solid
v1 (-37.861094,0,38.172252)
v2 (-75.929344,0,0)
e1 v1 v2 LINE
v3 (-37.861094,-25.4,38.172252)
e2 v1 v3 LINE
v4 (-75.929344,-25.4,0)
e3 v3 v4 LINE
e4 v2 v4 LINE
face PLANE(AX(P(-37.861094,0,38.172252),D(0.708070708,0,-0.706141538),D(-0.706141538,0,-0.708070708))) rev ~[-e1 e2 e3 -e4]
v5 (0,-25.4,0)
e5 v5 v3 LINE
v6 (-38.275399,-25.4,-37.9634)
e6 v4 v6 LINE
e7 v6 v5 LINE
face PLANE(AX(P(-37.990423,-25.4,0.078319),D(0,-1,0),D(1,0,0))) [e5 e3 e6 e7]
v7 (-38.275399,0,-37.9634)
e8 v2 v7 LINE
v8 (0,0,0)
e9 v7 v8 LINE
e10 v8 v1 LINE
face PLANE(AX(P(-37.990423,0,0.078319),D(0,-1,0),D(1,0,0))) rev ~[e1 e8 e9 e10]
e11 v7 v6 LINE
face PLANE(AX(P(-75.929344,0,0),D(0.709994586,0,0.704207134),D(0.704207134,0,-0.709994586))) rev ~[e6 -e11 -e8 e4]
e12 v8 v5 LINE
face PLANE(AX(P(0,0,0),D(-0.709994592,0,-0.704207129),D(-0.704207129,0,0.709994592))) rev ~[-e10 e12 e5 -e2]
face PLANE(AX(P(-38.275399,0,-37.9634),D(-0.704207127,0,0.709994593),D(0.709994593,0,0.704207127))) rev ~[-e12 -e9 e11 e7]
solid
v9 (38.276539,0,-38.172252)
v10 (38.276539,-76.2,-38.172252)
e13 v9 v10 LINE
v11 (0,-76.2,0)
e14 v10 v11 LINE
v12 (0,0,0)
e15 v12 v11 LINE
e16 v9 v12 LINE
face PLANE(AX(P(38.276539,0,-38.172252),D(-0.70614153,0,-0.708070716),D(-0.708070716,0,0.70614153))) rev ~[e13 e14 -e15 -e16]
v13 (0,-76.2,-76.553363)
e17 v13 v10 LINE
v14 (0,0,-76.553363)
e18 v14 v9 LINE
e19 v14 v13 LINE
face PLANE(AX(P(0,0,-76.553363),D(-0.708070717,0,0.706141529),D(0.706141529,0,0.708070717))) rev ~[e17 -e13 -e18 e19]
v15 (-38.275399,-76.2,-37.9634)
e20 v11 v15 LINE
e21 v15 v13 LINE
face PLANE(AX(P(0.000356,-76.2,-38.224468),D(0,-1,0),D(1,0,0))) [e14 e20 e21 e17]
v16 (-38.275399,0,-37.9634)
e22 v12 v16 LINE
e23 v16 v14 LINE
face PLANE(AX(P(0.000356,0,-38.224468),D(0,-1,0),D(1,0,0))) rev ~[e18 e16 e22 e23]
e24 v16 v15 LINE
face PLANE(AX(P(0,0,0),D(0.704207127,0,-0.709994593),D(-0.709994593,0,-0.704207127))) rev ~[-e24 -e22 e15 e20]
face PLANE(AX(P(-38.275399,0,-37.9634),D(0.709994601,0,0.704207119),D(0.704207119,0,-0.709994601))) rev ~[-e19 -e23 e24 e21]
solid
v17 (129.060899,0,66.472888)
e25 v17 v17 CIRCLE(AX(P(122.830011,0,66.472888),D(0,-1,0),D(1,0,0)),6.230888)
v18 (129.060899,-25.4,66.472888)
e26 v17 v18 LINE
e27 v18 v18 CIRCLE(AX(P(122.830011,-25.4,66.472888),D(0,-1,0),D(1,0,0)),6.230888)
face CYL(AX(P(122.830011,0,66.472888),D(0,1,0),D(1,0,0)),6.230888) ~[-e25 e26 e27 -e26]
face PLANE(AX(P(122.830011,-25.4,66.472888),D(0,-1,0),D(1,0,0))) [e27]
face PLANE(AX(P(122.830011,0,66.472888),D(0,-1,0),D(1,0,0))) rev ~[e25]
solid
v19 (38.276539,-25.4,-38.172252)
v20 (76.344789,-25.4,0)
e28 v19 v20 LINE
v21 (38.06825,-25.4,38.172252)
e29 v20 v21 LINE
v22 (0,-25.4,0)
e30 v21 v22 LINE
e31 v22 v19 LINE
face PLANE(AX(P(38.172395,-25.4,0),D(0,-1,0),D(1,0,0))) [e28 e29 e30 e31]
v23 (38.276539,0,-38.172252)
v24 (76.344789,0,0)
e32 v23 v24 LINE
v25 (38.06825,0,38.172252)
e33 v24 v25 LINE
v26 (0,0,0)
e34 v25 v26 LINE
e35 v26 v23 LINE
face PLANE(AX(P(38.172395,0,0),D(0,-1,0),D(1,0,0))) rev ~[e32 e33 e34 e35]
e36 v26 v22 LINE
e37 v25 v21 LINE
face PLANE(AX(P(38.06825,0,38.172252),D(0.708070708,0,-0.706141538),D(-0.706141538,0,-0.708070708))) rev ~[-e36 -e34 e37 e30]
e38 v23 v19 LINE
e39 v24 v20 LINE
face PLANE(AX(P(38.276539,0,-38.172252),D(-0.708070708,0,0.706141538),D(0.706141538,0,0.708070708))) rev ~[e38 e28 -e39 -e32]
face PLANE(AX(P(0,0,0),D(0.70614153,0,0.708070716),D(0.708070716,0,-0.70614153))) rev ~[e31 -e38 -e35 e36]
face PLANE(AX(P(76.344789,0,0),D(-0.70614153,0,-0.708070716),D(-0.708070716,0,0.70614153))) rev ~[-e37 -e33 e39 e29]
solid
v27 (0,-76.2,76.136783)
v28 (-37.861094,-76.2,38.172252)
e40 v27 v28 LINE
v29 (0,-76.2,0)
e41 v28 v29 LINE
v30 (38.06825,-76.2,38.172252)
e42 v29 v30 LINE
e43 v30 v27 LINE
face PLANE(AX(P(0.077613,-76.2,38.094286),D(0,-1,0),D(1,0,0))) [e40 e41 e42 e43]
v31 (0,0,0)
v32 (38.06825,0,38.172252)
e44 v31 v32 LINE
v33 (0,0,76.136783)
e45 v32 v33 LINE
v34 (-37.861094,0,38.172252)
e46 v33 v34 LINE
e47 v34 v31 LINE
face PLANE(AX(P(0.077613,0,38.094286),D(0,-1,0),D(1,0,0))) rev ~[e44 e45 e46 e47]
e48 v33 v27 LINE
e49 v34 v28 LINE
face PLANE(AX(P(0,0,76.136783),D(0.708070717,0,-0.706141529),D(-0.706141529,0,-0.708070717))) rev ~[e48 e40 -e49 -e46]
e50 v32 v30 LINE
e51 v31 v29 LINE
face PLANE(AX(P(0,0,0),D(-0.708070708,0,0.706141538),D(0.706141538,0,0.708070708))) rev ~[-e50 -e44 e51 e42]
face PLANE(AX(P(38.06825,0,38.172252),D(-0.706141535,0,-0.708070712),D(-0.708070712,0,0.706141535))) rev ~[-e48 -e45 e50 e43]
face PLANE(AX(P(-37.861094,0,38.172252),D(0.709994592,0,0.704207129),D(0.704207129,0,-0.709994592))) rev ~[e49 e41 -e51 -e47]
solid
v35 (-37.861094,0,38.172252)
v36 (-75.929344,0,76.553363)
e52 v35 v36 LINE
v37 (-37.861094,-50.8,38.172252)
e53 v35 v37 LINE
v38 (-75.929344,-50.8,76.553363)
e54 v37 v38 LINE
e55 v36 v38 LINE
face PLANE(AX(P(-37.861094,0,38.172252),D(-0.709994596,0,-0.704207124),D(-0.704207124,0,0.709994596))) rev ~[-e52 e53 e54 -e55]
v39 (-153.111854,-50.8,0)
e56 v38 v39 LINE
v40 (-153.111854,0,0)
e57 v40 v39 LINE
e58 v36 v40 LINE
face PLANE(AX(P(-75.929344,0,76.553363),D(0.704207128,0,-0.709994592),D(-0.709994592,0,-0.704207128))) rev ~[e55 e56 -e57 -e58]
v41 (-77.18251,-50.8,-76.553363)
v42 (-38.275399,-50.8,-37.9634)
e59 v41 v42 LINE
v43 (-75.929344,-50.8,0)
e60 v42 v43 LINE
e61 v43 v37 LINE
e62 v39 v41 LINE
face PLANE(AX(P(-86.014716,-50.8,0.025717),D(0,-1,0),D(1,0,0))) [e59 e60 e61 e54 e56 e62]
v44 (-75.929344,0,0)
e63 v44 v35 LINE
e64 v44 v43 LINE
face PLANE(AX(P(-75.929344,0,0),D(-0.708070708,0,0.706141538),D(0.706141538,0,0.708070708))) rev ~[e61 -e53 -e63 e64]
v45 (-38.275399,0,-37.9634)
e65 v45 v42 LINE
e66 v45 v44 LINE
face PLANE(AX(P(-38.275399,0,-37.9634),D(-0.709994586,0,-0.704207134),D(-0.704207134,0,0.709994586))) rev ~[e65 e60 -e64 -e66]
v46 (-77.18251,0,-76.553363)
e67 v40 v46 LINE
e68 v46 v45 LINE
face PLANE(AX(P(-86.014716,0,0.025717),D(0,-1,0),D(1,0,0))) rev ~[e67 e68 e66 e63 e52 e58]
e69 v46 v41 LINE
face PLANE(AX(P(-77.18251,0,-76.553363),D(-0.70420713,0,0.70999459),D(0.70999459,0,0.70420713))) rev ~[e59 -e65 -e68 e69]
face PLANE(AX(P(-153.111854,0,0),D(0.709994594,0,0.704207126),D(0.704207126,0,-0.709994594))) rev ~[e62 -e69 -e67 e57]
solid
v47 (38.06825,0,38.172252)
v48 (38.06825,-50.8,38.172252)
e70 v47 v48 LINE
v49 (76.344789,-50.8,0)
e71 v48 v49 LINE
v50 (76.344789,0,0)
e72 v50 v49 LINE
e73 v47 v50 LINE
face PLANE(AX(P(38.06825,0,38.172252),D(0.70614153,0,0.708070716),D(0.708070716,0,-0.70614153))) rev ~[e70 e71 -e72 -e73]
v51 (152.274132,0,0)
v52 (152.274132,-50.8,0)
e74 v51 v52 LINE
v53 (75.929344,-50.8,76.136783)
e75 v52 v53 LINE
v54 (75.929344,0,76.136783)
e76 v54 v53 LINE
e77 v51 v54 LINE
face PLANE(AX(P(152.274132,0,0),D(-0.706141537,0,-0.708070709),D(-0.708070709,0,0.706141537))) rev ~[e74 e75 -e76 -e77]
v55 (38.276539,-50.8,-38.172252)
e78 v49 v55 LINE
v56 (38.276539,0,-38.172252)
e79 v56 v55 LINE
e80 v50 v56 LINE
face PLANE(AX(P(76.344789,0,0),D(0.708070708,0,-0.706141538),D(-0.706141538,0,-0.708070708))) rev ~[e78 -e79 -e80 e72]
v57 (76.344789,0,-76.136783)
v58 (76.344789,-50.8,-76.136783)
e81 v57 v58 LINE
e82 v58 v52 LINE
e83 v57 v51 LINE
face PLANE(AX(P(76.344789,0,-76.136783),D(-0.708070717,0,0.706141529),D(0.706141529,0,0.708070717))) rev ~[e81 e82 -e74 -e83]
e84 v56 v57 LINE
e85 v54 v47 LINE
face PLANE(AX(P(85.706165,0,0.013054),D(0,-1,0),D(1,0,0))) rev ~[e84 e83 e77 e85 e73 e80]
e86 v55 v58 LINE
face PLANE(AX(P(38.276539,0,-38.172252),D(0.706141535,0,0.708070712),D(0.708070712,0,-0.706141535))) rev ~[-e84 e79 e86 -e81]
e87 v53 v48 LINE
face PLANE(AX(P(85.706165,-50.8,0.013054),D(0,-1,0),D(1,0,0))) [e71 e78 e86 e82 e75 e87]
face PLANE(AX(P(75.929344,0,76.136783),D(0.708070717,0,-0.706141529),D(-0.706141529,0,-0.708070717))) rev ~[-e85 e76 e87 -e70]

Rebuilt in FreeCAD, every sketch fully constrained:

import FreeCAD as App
import Part
import Sketcher

V = App.Vector
Q = App.Units.Quantity


def add_polygon(sketch, points):
    """Adds a closed chain of lines whose ends are joined by coincident constraints."""
    first, n = sketch.GeometryCount, len(points)
    for a, b in zip(points, points[1:] + points[:1]):
        sketch.addGeometry(Part.LineSegment(App.Vector(*a, 0), App.Vector(*b, 0)), False)
    for i in range(n):
        sketch.addConstraint(Sketcher.Constraint("Coincident", first + i, 2, first + (i + 1) % n, 1))

doc = App.newDocument("Part")
body = doc.addObject("PartDesign::Body", "Body")
body.AllowCompound = True

sketch1 = doc.addObject("Sketcher::SketchObject", "Sketch")
body.addObject(sketch1)
sketch1.AttachmentSupport = (doc.XZ_Plane, [""])
sketch1.MapMode = "FlatFace"
add_polygon(sketch1, [(-37.861094, 38.172252), (-75.929344, 0), (-38.275399, -37.9634), (0, 0)])
add_polygon(sketch1, [(38.06825, 38.172252), (0, 0), (38.276539, -38.172252), (76.344789, 0)])
sketch1.addConstraint([
    Sketcher.Constraint("Coincident", 2, 2, -1, 1),
    Sketcher.Constraint("Coincident", 4, 2, -1, 1),
    Sketcher.Constraint("PointOnObject", 0, 2, -1),
    Sketcher.Constraint("PointOnObject", 6, 2, -1),
    Sketcher.Constraint("Perpendicular", 1, 2),
    Sketcher.Constraint("Perpendicular", 2, 3),
    Sketcher.Constraint("Parallel", 0, 4),
    Sketcher.Constraint("Perpendicular", 4, 5),
    Sketcher.Constraint("Perpendicular", 5, 6),
    Sketcher.Constraint("Perpendicular", 6, 7),
    Sketcher.Constraint("Horizontal", 3, 2, 7, 2),
    Sketcher.Constraint("DistanceX", 1, 2, -1, 1, Q("38.275399 mm")),
    Sketcher.Constraint("DistanceY", 1, 2, -1, 1, Q("37.9634 mm")),
    Sketcher.Constraint("Distance", 5, Q("54.057509 mm")),
])
pad1 = doc.addObject("PartDesign::Pad", "Pad")
body.addObject(pad1)
pad1.Profile = sketch1
pad1.Length = Q("1 in")
body2 = doc.addObject("PartDesign::Body", "Body001")
body2.AllowCompound = True

sketch2 = doc.addObject("Sketcher::SketchObject", "Sketch001")
body2.addObject(sketch2)
sketch2.AttachmentSupport = (doc.getObject("XZ_Plane001"), [""])
sketch2.MapMode = "FlatFace"
add_polygon(sketch2, [(-38.275399, -37.9634), (-75.929344, 0), (-37.861094, 38.172252), (-75.929344, 76.553363), (-153.111854, 0), (-77.18251, -76.553363)])
add_polygon(sketch2, [(75.929344, 76.136783), (38.06825, 38.172252), (76.344789, 0), (38.276539, -38.172252), (76.344789, -76.136783), (152.274132, 0)])
sketch2.addConstraint([
    Sketcher.Constraint("PointOnObject", 0, 2, -1),
    Sketcher.Constraint("PointOnObject", 3, 2, -1),
    Sketcher.Constraint("PointOnObject", 7, 2, -1),
    Sketcher.Constraint("PointOnObject", 10, 2, -1),
    Sketcher.Constraint("Parallel", 0, 2),
    Sketcher.Constraint("Perpendicular", 2, 3),
    Sketcher.Constraint("Perpendicular", 3, 4),
    Sketcher.Constraint("Perpendicular", 4, 5),
    Sketcher.Constraint("Parallel", 1, 6),
    Sketcher.Constraint("Perpendicular", 6, 7),
    Sketcher.Constraint("Perpendicular", 7, 8),
    Sketcher.Constraint("Perpendicular", 8, 9),
    Sketcher.Constraint("Perpendicular", 9, 10),
    Sketcher.Constraint("Perpendicular", 10, 11),
    Sketcher.Constraint("Horizontal", 1, 2, 6, 2),
    Sketcher.Constraint("Vertical", 0, 2, 2, 2),
    Sketcher.Constraint("Vertical", 7, 2, 9, 2),
    Sketcher.Constraint("Equal", 1, 8),
    Sketcher.Constraint("Distance", 6, Q("2.1109001 in")),
    Sketcher.Constraint("DistanceX", 5, 2, -1, 1, Q("38.275399 mm")),
    Sketcher.Constraint("DistanceY", 5, 2, -1, 1, Q("37.9634 mm")),
    Sketcher.Constraint("DistanceX", 4, 2, 9, 2, Q("153.527299 mm")),
    Sketcher.Constraint("Distance", 3, Q("108.708589 mm")),
    Sketcher.Constraint("Distance", 4, Q("107.822459 mm")),
])
pad2 = doc.addObject("PartDesign::Pad", "Pad001")
body2.addObject(pad2)
pad2.Profile = sketch2
pad2.Length = Q("2 in")
body3 = doc.addObject("PartDesign::Body", "Body002")
body3.AllowCompound = True

sketch3 = doc.addObject("Sketcher::SketchObject", "Sketch002")
body3.addObject(sketch3)
sketch3.AttachmentSupport = (doc.getObject("XZ_Plane002"), [""])
sketch3.MapMode = "FlatFace"
add_polygon(sketch3, [(0, 76.136783), (-37.861094, 38.172252), (0, 0), (38.06825, 38.172252)])
add_polygon(sketch3, [(0, 0), (-38.275399, -37.9634), (0, -76.553363), (38.276539, -38.172252)])
sketch3.addConstraint([
    Sketcher.Constraint("Coincident", 1, 2, -1, 1),
    Sketcher.Constraint("Coincident", 7, 2, -1, 1),
    Sketcher.Constraint("PointOnObject", 3, 2, -2),
    Sketcher.Constraint("PointOnObject", 5, 2, -2),
    Sketcher.Constraint("Parallel", 0, 2),
    Sketcher.Constraint("Perpendicular", 2, 3),
    Sketcher.Constraint("Perpendicular", 1, 4),
    Sketcher.Constraint("Perpendicular", 4, 5),
    Sketcher.Constraint("Perpendicular", 3, 6),
    Sketcher.Constraint("Perpendicular", 6, 7),
    Sketcher.Constraint("Horizontal", 0, 2, 2, 2),
    Sketcher.Constraint("Distance", 0, Q("2.1109001 in")),
    Sketcher.Constraint("DistanceX", 4, 2, -1, 1, Q("38.275399 mm")),
    Sketcher.Constraint("DistanceY", 4, 2, -1, 1, Q("37.9634 mm")),
])
pad3 = doc.addObject("PartDesign::Pad", "Pad002")
body3.addObject(pad3)
pad3.Profile = sketch3
pad3.Length = Q("3 in")
body4 = doc.addObject("PartDesign::Body", "Body003")

sketch4 = doc.addObject("Sketcher::SketchObject", "Sketch003")
body4.addObject(sketch4)
sketch4.AttachmentSupport = (doc.getObject("XZ_Plane003"), [""])
sketch4.MapMode = "FlatFace"
sketch4.addGeometry(Part.Circle(V(122.830011, 66.472888, 0), V(0, 0, 1), 6.230888), False)
sketch4.addConstraint([
    Sketcher.Constraint("Diameter", 0, Q("12.461776 mm")),
    Sketcher.Constraint("DistanceX", -1, 1, 0, 3, Q("122.830011 mm")),
    Sketcher.Constraint("DistanceY", -1, 1, 0, 3, Q("66.472888 mm")),
])
pad4 = doc.addObject("PartDesign::Pad", "Pad003")
body4.addObject(pad4)
pad4.Profile = sketch4
pad4.Length = Q("1 in")

doc.recompute()
